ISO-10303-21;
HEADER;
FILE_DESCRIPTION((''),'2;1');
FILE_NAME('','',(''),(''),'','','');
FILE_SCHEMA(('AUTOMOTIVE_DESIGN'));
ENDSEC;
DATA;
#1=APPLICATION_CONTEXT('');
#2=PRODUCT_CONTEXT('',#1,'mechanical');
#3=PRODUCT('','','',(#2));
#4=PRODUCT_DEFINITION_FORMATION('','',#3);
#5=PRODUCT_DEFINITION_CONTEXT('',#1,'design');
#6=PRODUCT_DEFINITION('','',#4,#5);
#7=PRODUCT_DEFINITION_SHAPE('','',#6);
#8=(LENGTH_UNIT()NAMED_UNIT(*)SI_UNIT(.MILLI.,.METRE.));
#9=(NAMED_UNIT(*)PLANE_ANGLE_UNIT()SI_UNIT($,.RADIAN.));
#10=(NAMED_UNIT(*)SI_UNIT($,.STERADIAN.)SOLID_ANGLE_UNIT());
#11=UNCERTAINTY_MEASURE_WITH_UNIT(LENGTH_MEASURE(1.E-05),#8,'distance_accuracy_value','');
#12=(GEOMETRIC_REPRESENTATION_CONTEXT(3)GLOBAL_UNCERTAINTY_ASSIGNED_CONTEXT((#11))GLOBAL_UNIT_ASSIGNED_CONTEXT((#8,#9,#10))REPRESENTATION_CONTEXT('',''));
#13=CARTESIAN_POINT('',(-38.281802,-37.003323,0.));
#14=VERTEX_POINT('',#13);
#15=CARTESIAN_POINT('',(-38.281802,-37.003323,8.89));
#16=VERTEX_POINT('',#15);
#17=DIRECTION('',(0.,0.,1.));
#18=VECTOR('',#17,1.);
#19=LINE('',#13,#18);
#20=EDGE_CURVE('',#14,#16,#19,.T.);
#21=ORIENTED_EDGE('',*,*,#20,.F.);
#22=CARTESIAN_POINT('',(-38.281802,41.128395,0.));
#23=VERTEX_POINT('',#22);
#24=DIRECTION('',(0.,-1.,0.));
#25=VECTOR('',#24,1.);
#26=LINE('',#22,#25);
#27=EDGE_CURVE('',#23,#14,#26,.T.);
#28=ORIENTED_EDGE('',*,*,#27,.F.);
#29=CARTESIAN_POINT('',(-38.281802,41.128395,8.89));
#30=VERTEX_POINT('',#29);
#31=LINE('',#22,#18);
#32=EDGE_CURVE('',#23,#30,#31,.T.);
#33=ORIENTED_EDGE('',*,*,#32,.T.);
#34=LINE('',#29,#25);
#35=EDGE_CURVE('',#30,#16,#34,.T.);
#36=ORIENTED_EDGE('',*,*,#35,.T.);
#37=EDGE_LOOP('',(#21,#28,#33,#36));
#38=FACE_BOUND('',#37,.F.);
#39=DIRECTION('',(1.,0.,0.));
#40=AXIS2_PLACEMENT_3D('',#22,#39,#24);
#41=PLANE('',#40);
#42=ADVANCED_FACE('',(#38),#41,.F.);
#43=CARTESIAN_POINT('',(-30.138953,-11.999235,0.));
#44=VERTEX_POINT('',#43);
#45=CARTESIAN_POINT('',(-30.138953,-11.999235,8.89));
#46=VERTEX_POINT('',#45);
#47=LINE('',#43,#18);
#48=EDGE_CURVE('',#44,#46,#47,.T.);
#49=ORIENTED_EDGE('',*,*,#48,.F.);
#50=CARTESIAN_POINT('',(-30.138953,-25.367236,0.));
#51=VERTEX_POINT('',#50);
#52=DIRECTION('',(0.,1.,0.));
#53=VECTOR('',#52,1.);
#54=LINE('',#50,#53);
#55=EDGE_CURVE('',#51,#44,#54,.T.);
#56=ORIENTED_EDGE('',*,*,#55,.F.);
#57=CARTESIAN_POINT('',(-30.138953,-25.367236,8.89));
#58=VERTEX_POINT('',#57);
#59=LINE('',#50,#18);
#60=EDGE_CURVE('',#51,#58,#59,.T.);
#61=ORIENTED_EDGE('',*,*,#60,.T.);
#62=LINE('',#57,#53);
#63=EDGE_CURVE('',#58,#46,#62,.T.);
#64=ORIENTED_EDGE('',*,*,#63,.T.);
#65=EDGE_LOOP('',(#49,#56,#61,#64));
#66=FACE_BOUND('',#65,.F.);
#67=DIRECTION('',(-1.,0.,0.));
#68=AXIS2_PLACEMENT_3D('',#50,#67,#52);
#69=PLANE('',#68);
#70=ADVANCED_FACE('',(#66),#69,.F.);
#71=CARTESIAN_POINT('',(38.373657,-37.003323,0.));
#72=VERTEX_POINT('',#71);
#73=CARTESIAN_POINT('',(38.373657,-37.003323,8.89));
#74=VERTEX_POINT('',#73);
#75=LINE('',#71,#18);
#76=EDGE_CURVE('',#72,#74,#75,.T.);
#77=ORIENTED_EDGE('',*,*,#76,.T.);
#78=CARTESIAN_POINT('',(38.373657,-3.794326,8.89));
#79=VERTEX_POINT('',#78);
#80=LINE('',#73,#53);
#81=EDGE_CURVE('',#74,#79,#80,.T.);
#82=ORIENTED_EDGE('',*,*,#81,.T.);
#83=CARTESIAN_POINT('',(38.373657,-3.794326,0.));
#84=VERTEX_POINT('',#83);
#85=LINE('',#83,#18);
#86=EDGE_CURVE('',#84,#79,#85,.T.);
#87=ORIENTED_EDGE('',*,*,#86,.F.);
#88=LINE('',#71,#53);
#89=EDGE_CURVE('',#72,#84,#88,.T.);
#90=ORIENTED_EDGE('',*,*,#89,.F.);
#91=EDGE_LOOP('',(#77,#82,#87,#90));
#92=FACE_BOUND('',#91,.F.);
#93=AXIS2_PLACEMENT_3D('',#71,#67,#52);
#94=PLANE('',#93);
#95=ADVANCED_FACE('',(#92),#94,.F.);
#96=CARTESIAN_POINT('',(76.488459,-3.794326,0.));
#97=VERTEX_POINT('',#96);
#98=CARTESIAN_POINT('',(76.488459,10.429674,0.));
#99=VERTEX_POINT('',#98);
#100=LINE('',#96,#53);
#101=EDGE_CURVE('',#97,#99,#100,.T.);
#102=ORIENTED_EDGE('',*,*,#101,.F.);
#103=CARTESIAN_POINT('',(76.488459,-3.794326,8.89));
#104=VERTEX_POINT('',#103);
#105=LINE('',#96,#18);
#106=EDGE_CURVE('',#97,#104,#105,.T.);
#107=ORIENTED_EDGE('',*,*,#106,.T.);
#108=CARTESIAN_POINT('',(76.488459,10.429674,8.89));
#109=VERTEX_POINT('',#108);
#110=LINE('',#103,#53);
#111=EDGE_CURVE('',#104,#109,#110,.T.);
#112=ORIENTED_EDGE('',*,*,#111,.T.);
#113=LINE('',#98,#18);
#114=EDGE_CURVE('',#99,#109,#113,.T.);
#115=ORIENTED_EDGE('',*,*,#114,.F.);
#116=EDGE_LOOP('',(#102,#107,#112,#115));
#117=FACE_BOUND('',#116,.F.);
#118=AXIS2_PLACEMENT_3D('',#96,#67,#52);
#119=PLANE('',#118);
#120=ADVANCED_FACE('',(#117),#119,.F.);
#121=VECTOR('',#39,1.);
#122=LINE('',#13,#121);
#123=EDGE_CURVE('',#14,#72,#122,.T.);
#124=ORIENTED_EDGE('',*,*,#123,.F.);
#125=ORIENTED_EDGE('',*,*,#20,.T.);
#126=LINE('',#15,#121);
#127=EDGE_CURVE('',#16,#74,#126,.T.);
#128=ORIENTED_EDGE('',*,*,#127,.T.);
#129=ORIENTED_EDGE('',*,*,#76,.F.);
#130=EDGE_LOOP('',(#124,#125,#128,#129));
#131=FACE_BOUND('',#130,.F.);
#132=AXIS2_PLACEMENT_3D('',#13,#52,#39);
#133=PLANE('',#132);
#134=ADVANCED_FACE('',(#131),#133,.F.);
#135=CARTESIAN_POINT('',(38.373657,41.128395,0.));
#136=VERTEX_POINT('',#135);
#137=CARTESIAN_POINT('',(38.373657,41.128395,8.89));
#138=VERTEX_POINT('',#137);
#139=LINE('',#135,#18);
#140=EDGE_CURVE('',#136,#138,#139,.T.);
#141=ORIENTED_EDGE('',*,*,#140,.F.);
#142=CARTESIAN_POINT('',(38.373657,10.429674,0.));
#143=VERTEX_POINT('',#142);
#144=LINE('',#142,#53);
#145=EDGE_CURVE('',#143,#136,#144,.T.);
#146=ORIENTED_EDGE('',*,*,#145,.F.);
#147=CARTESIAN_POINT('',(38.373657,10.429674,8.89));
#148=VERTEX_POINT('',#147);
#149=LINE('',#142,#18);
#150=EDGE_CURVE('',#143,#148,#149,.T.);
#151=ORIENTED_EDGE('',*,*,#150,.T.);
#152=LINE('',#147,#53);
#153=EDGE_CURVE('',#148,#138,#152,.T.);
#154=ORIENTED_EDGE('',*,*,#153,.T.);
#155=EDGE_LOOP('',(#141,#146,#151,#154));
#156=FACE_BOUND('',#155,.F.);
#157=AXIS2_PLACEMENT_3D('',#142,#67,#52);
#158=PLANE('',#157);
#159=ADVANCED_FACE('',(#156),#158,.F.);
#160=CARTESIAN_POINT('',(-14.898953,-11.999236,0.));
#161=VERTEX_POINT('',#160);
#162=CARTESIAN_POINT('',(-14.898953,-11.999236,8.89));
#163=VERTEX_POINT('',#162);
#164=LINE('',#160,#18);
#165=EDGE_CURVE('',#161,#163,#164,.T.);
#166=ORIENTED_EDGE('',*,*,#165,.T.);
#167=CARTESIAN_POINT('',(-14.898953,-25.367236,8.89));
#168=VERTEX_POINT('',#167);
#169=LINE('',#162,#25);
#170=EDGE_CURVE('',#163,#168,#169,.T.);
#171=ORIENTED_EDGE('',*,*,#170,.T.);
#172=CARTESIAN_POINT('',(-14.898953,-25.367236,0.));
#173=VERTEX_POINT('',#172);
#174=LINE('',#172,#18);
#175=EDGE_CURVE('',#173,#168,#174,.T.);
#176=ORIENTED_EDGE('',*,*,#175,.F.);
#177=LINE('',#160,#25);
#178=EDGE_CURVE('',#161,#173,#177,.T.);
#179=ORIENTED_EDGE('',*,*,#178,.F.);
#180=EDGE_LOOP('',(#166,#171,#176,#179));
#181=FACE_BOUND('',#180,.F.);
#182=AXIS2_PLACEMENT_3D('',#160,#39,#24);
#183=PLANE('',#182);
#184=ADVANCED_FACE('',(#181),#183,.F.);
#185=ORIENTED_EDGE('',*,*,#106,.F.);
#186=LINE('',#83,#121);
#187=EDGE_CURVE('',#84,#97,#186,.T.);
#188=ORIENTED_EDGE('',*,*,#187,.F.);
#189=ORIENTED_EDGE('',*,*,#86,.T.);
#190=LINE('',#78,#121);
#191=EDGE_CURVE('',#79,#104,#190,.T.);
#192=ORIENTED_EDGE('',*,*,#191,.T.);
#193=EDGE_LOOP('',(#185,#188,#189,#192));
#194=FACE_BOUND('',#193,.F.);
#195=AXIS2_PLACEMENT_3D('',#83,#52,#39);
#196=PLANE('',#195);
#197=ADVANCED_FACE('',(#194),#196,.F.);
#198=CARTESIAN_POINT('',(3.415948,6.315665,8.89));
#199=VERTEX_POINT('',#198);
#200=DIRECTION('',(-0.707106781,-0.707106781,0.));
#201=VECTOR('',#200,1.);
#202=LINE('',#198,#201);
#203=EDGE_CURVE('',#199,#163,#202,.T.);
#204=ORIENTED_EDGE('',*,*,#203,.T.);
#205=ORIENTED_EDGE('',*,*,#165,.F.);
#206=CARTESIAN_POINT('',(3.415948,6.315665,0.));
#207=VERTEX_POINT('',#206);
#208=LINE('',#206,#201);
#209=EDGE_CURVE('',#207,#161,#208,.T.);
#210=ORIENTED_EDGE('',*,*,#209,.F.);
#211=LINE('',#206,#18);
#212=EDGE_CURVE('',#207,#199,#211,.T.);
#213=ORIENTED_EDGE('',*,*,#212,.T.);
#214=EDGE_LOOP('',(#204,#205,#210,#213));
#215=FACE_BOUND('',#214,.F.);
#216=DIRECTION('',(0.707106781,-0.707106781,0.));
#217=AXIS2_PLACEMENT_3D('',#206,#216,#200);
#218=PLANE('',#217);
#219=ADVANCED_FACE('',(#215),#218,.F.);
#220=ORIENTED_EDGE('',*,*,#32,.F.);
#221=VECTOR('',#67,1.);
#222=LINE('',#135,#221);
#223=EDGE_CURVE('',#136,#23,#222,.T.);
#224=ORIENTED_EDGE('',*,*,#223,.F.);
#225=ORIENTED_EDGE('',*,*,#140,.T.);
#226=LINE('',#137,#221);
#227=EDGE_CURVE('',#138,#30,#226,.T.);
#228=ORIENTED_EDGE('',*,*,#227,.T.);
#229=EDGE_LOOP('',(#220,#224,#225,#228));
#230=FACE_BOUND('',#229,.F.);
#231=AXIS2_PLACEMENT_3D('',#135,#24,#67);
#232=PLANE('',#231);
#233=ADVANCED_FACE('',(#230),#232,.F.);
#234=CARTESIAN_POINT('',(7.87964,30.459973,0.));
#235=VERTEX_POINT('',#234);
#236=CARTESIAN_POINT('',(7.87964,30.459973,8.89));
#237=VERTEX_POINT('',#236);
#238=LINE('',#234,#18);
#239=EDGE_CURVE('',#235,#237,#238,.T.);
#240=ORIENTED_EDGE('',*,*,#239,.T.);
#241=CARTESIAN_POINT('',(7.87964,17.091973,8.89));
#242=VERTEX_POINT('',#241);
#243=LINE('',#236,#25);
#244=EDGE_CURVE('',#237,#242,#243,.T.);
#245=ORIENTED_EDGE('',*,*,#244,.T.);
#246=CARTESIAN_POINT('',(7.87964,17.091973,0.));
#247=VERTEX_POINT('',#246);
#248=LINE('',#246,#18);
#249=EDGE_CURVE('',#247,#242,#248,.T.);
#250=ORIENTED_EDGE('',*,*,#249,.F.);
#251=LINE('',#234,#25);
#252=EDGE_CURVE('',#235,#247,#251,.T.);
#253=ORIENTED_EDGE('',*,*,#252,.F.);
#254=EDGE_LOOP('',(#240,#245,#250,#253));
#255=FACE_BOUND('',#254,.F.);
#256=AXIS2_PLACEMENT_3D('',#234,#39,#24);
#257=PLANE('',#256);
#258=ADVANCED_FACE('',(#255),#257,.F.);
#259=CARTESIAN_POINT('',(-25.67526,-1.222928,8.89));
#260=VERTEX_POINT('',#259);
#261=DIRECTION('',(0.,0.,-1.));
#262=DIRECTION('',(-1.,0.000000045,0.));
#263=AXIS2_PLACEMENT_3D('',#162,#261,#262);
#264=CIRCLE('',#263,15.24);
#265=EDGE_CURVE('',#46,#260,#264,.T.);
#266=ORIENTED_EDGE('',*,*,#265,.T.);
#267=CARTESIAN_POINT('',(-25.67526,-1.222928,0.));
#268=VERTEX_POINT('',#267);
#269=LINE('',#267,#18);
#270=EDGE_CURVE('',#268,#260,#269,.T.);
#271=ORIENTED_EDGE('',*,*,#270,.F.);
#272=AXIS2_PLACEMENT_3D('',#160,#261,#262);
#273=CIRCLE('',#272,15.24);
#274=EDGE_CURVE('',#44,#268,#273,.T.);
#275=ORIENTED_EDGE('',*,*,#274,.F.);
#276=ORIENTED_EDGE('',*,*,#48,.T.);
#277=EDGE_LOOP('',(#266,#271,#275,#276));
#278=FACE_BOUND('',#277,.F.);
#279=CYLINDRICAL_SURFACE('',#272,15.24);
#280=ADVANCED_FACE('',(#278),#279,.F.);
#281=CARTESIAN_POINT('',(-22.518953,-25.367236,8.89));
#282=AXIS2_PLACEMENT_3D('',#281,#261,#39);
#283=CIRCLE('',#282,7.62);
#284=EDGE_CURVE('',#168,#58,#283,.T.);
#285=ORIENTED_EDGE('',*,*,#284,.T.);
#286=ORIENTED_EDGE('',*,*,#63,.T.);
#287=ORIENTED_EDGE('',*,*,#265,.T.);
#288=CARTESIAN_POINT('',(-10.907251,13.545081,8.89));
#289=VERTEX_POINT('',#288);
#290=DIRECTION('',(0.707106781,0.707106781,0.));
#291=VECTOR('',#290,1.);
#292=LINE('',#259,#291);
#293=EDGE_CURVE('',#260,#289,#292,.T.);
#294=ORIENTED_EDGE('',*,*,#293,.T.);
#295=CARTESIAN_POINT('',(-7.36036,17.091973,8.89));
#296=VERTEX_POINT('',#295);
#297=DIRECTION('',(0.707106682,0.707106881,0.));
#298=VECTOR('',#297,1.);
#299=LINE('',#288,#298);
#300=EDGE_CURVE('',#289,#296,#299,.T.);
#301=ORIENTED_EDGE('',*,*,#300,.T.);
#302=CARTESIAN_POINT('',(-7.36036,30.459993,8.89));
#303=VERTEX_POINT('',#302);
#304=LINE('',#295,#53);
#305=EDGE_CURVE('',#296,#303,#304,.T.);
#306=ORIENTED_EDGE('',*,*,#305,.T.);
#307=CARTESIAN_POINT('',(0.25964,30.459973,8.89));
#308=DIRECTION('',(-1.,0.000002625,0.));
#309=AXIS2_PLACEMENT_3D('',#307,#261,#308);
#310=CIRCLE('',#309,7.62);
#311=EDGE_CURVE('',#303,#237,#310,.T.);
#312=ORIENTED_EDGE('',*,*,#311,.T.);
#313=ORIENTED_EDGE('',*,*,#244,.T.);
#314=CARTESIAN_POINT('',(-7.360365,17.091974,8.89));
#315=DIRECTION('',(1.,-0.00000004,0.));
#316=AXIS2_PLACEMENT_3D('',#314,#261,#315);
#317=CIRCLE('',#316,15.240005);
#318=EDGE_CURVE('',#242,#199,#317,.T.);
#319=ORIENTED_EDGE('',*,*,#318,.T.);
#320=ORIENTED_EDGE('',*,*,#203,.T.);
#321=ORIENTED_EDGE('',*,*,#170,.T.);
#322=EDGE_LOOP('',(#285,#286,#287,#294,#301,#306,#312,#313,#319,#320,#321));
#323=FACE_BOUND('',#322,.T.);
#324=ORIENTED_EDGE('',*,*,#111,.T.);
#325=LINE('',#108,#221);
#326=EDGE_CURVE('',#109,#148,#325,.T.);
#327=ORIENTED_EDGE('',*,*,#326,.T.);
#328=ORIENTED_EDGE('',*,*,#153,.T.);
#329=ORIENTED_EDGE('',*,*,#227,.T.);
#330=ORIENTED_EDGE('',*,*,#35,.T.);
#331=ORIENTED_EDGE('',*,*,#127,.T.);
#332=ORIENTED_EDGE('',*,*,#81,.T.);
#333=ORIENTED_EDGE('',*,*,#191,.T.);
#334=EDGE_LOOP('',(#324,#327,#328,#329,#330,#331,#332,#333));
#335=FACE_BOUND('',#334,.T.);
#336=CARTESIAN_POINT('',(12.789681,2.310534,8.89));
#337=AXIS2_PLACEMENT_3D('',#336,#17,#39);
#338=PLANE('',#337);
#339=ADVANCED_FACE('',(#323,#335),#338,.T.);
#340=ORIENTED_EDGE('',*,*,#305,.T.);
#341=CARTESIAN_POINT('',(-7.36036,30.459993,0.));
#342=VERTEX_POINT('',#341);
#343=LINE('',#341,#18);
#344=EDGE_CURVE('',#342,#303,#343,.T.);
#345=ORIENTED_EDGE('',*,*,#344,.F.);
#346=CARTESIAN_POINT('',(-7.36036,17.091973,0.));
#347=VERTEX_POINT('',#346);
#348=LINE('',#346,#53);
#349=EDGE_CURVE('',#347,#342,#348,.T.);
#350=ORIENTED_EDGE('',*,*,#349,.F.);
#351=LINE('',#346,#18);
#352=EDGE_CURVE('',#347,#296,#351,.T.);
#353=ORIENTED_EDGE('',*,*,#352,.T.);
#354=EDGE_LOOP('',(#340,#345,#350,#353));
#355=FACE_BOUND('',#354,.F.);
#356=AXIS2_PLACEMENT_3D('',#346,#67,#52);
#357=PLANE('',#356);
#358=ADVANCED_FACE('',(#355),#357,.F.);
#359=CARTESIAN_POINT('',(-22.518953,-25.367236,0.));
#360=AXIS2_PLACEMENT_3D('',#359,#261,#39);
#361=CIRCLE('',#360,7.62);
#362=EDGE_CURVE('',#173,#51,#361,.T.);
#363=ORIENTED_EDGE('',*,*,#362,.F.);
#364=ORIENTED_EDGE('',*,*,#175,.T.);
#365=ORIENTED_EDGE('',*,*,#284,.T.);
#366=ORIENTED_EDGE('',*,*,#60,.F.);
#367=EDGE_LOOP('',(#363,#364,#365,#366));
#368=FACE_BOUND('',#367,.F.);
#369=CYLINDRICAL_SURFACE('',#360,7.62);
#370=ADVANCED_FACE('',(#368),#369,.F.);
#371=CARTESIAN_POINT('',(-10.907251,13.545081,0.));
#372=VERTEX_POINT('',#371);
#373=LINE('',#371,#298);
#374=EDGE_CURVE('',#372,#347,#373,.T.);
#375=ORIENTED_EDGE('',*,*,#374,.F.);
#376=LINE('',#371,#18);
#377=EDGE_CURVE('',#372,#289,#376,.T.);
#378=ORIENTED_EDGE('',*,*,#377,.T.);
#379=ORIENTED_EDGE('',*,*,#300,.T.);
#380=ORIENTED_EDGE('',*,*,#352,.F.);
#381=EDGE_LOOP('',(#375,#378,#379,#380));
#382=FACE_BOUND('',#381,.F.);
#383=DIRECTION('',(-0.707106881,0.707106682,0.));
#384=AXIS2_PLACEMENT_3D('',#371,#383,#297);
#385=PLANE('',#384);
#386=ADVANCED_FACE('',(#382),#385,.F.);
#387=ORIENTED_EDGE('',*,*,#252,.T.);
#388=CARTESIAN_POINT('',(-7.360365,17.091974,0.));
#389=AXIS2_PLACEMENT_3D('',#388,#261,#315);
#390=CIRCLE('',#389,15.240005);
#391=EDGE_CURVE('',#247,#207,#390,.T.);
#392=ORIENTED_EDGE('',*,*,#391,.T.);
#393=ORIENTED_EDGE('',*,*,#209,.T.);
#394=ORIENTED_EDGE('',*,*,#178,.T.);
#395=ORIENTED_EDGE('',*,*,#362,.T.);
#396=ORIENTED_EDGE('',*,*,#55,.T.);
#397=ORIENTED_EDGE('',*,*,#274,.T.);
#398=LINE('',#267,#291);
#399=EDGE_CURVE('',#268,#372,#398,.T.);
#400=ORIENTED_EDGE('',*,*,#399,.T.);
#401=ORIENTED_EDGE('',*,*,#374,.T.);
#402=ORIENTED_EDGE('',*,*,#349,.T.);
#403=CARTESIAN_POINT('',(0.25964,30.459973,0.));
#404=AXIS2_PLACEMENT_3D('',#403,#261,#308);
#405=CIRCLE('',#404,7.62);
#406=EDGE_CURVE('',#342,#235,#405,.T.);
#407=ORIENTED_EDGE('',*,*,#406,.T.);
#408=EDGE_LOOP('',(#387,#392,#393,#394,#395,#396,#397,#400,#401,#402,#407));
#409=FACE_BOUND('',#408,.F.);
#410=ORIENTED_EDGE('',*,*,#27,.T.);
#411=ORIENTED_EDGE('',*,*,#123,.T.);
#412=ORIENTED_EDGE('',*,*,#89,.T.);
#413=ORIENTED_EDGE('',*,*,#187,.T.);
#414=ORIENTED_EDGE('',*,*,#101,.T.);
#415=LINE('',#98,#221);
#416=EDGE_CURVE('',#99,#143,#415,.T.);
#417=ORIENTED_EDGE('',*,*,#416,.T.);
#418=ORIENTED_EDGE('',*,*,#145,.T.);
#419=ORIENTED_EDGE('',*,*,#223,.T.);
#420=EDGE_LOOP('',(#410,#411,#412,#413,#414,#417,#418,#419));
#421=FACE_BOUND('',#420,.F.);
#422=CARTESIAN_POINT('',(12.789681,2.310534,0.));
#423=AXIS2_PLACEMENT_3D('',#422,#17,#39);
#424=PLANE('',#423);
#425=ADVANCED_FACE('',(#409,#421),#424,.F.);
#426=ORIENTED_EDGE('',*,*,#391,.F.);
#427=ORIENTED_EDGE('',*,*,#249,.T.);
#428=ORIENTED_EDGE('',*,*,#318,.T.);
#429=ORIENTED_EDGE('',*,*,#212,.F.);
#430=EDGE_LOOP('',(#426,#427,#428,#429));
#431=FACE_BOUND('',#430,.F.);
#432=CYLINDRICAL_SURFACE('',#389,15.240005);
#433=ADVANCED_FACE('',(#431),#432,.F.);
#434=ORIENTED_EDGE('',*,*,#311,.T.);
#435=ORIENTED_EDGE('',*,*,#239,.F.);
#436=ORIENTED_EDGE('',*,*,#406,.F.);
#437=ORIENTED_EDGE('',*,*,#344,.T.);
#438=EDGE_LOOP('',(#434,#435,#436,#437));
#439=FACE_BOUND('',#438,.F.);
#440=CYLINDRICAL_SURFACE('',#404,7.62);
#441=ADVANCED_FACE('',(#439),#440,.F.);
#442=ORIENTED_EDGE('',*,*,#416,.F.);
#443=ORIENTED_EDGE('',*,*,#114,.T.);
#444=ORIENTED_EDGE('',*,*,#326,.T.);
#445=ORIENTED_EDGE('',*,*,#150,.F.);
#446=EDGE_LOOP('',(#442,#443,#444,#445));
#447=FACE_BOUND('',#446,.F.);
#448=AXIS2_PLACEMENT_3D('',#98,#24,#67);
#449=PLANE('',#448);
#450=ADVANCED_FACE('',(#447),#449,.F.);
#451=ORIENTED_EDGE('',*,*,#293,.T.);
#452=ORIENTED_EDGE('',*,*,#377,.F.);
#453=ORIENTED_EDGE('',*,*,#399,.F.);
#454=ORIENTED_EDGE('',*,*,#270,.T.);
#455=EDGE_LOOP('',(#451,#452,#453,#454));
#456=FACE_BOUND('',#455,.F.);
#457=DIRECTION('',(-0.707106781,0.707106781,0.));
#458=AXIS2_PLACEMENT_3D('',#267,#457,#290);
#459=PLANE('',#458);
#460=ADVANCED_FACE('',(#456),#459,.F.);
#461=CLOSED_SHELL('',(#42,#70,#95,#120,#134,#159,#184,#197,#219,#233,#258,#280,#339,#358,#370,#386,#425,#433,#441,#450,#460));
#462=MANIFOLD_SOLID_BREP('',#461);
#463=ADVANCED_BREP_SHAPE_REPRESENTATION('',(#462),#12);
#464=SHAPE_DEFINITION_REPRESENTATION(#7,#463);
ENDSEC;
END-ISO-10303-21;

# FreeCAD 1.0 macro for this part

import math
import FreeCAD as App
import Part
import Sketcher

V = App.Vector
Q = App.Units.Quantity


def add_polygon(sketch, points):
    """Adds a closed chain of lines whose ends are joined by coincident constraints."""
    first, n = sketch.GeometryCount, len(points)
    for a, b in zip(points, points[1:] + points[:1]):
        sketch.addGeometry(Part.LineSegment(App.Vector(*a, 0), App.Vector(*b, 0)), False)
    for i in range(n):
        sketch.addConstraint(Sketcher.Constraint("Coincident", first + i, 2, first + (i + 1) % n, 1))

doc = App.newDocument("Part")
params = doc.addObject("Spreadsheet::Sheet", "Params")
for row, (alias, value) in enumerate([
    ("sketch1_radius", "0.3 in"),
    ("sketch1_height", "0.56 in"),
    ("pad1_length", "0.35 in"),
], start=1):
    params.set(f"A{row}", alias)
    params.set(f"B{row}", "=" + value)
    params.setAlias(f"B{row}", alias)

body = doc.addObject("PartDesign::Body", "Body")

sketch1 = doc.addObject("Sketcher::SketchObject", "Sketch")
body.addObject(sketch1)
sketch1.AttachmentSupport = (doc.XY_Plane, [""])
sketch1.MapMode = "FlatFace"
add_polygon(sketch1, [(38, 41), (-38, 41), (-38, -37), (38, -37), (38, -4), (76, -4), (76, 10), (38, 10)])
sketch1.addGeometry(Part.LineSegment(V(-26, -1, 0), V(-11, 14, 0)), False)
sketch1.addGeometry(Part.LineSegment(V(-11, 14, 0), V(-7, 17, 0)), False)
sketch1.addGeometry(Part.LineSegment(V(-7, 17, 0), V(-7, 30, 0)), False)
sketch1.addGeometry(Part.ArcOfCircle(Part.Circle(V(0, 30, 0), V(0, 0, 1), 8), math.radians(0), math.radians(180)), False)
sketch1.addGeometry(Part.LineSegment(V(8, 30, 0), V(8, 17, 0)), False)
sketch1.addGeometry(Part.ArcOfCircle(Part.Circle(V(-7, 17, 0), V(0, 0, 1), 15), math.radians(-45), math.radians(0)), False)
sketch1.addGeometry(Part.LineSegment(V(3, 6, 0), V(-15, -12, 0)), False)
sketch1.addGeometry(Part.LineSegment(V(-15, -12, 0), V(-15, -25, 0)), False)
sketch1.addGeometry(Part.ArcOfCircle(Part.Circle(V(-23, -25, 0), V(0, 0, 1), 8), math.radians(180), math.radians(360)), False)
sketch1.addGeometry(Part.LineSegment(V(-30, -25, 0), V(-30, -12, 0)), False)
sketch1.addGeometry(Part.ArcOfCircle(Part.Circle(V(-15, -12, 0), V(0, 0, 1), 15), math.radians(135), math.radians(180)), False)
sketch1.addConstraint([
    Sketcher.Constraint("Coincident", 8, 2, 9, 1),
    Sketcher.Constraint("Coincident", 9, 2, 10, 1),
    Sketcher.Constraint("Coincident", 10, 2, 11, 2),
    Sketcher.Constraint("Tangent", 11, 1, 12, 1),
    Sketcher.Constraint("Tangent", 12, 2, 13, 2),
    Sketcher.Constraint("Tangent", 13, 1, 14, 1),
    Sketcher.Constraint("Coincident", 14, 2, 15, 1),
    Sketcher.Constraint("Tangent", 15, 2, 16, 2),
    Sketcher.Constraint("Tangent", 16, 1, 17, 1),
    Sketcher.Constraint("Tangent", 17, 2, 18, 2),
    Sketcher.Constraint("Tangent", 18, 1, 8, 1),
    Sketcher.Constraint("Horizontal", 0),
    Sketcher.Constraint("Vertical", 1),
    Sketcher.Constraint("Horizontal", 2),
    Sketcher.Constraint("Vertical", 3),
    Sketcher.Constraint("Horizontal", 4),
    Sketcher.Constraint("Vertical", 5),
    Sketcher.Constraint("Horizontal", 6),
    Sketcher.Constraint("Vertical", 7),
    Sketcher.Constraint("Vertical", 10),
    Sketcher.Constraint("Vertical", 12),
    Sketcher.Constraint("Vertical", 15),
    Sketcher.Constraint("Vertical", 17),
    Sketcher.Constraint("Coincident", 9, 2, 13, 3),
    Sketcher.Constraint("Coincident", 14, 2, 18, 3),
    Sketcher.Constraint("Equal", 11, 16),
    Sketcher.Constraint("Parallel", 8, 9),
    Sketcher.Constraint("Vertical", 3, 2, 6, 2),
    Sketcher.Constraint("Equal", 12, 15),
    Sketcher.Constraint("Radius", 11, Q("0.3 in")),
    Sketcher.Constraint("Angle", 8, Q("45 deg")),
    Sketcher.Constraint("DistanceY", 5, 1, 5, 2, Q("0.56 in")),
    Sketcher.Constraint("DistanceY", 10, 1, 10, 2, Q("0.5263 in")),
    Sketcher.Constraint("DistanceY", 12, 2, 12, 1, 13.368),
    Sketcher.Constraint("DistanceX", 0, 2, 0, 1, 76.655459),
    Sketcher.Constraint("DistanceY", 1, 2, 1, 1, 78.131718),
    Sketcher.Constraint("DistanceY", 7, 1, 7, 2, 30.698721),
    Sketcher.Constraint("DistanceY", 3, 2, 13, 3, 20.8863),
    Sketcher.Constraint("DistanceX", 18, 3, 8, 2, 3.991702),
    Sketcher.Constraint("DistanceX", 8, 2, 13, 1, 14.323199),
    Sketcher.Constraint("DistanceX", 4, 1, 4, 2, 38.114802),
    Sketcher.Constraint("DistanceX", -1, 1, 11, 3, 0.25964),
    Sketcher.Constraint("DistanceX", -1, 1, 4, 2, 76.488459),
    Sketcher.Constraint("DistanceY", -1, 1, 8, 2, 13.545081),
])
sketch1.setExpression("Constraints[37]", "Params.sketch1_radius")
sketch1.setExpression("Constraints[39]", "Params.sketch1_height")
pad1 = doc.addObject("PartDesign::Pad", "Pad")
body.addObject(pad1)
pad1.Profile = sketch1
pad1.setExpression("Length", "Params.pad1_length")

doc.recompute()
